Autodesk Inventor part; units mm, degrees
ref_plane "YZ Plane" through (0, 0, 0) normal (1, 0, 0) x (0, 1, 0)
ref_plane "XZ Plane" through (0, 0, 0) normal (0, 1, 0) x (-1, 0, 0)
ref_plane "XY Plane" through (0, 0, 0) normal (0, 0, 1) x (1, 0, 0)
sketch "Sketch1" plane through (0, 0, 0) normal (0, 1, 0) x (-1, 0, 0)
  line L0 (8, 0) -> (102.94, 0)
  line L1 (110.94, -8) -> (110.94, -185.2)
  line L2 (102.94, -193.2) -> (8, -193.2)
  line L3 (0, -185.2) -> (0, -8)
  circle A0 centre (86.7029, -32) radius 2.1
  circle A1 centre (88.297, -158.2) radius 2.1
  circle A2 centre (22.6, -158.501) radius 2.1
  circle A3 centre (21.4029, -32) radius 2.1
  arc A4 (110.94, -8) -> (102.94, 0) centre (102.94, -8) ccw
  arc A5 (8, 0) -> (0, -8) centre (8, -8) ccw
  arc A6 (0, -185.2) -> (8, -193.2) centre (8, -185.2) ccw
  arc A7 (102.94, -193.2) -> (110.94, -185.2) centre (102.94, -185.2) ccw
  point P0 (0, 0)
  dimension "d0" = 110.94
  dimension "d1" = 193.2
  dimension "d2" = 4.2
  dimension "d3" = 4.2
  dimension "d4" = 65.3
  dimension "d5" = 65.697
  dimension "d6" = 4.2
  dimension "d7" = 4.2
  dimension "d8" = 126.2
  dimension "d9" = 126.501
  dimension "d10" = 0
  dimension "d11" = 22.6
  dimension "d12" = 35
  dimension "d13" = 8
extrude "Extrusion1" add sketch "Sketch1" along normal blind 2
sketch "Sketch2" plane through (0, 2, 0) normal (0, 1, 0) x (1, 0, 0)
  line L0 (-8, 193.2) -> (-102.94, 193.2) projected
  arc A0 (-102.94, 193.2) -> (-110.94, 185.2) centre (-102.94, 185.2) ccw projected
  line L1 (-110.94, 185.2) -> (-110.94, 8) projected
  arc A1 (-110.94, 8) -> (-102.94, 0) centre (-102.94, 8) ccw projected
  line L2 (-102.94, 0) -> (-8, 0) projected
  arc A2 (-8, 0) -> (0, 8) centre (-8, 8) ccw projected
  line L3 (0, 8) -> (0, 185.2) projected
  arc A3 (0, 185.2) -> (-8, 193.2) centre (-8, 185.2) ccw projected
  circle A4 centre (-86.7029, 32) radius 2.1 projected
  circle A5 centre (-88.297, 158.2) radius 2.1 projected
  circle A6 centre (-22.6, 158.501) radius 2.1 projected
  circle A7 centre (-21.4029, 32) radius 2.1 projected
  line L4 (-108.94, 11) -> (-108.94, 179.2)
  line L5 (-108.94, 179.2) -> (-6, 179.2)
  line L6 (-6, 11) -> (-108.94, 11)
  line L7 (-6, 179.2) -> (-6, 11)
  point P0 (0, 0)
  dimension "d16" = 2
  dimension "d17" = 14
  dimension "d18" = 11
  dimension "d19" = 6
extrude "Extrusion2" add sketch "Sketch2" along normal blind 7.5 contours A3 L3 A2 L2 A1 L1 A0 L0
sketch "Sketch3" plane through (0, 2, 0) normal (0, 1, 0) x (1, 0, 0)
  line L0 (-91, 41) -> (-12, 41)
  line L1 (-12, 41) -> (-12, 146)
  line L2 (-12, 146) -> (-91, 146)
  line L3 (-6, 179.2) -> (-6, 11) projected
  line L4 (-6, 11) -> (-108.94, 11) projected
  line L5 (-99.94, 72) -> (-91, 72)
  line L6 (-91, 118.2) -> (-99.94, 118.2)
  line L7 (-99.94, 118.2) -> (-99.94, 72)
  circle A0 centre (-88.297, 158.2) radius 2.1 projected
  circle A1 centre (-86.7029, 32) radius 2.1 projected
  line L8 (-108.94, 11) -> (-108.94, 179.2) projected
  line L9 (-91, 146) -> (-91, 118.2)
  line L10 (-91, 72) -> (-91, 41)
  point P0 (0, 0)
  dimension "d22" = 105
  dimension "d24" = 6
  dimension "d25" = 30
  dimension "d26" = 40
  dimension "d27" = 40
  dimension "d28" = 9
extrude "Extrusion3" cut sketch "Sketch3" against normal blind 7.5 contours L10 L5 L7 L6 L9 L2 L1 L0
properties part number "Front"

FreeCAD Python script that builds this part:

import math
import FreeCAD as App
import Part
import Sketcher

V = App.Vector


def add_polygon(sketch, points):
    """Adds a closed chain of lines whose ends are joined by coincident constraints."""
    first, n = sketch.GeometryCount, len(points)
    for a, b in zip(points, points[1:] + points[:1]):
        sketch.addGeometry(Part.LineSegment(App.Vector(*a, 0), App.Vector(*b, 0)), False)
    for i in range(n):
        sketch.addConstraint(Sketcher.Constraint("Coincident", first + i, 2, first + (i + 1) % n, 1))

doc = App.newDocument("Part")
body = doc.addObject("PartDesign::Body", "Body")

# Sketch on XZ plane
sketch1 = body.newObject("Sketcher::SketchObject", "Sketch")
sketch1.AttachmentSupport = (doc.getObject("XZ_Plane"), [""])
sketch1.MapMode = "FlatFace"
sketch1.addGeometry(Part.LineSegment(V(-102.9, 0, 0), V(-8, 0, 0)), False)
sketch1.addGeometry(Part.ArcOfCircle(Part.Circle(V(-8, -8, 0), V(0, 0, 1), 8), math.radians(0), math.radians(90)), False)
sketch1.addGeometry(Part.LineSegment(V(0, -8, 0), V(0, -185.2, 0)), False)
sketch1.addGeometry(Part.ArcOfCircle(Part.Circle(V(-8, -185.2, 0), V(0, 0, 1), 8), math.radians(-90), math.radians(0)), False)
sketch1.addGeometry(Part.LineSegment(V(-8, -193.2, 0), V(-102.9, -193.2, 0)), False)
sketch1.addGeometry(Part.ArcOfCircle(Part.Circle(V(-102.9, -185.2, 0), V(0, 0, 1), 8), math.radians(180), math.radians(270)), False)
sketch1.addGeometry(Part.LineSegment(V(-110.9, -185.2, 0), V(-110.9, -8, 0)), False)
sketch1.addGeometry(Part.ArcOfCircle(Part.Circle(V(-102.9, -8, 0), V(0, 0, 1), 8), math.radians(90), math.radians(180)), False)
sketch1.addGeometry(Part.Circle(V(-22.6, -158.5, 0), V(0, 0, 1), 2.1), False)
sketch1.addGeometry(Part.Circle(V(-88.3, -158.2, 0), V(0, 0, 1), 2.1), False)
sketch1.addGeometry(Part.Circle(V(-21.4, -32, 0), V(0, 0, 1), 2.1), False)
sketch1.addGeometry(Part.Circle(V(-86.7, -32, 0), V(0, 0, 1), 2.1), False)
sketch1.addConstraint(Sketcher.Constraint("Tangent", 0, 2, 1, 2))
sketch1.addConstraint(Sketcher.Constraint("Tangent", 1, 1, 2, 1))
sketch1.addConstraint(Sketcher.Constraint("Tangent", 2, 2, 3, 2))
sketch1.addConstraint(Sketcher.Constraint("Tangent", 3, 1, 4, 1))
sketch1.addConstraint(Sketcher.Constraint("Tangent", 4, 2, 5, 2))
sketch1.addConstraint(Sketcher.Constraint("Tangent", 5, 1, 6, 1))
sketch1.addConstraint(Sketcher.Constraint("Tangent", 6, 2, 7, 2))
sketch1.addConstraint(Sketcher.Constraint("Tangent", 7, 1, 0, 1))
sketch1.addConstraint(Sketcher.Constraint("Horizontal", 0))
sketch1.addConstraint(Sketcher.Constraint("Vertical", 2))
sketch1.addConstraint(Sketcher.Constraint("Horizontal", 4))
sketch1.addConstraint(Sketcher.Constraint("Vertical", 6))
sketch1.addConstraint(Sketcher.Constraint("Equal", 1, 3))
sketch1.addConstraint(Sketcher.Constraint("Equal", 3, 5))
sketch1.addConstraint(Sketcher.Constraint("Equal", 5, 7))
sketch1.addConstraint(Sketcher.Constraint("Equal", 8, 9))
sketch1.addConstraint(Sketcher.Constraint("Equal", 9, 10))
sketch1.addConstraint(Sketcher.Constraint("Equal", 10, 11))
sketch1.addConstraint(Sketcher.Constraint("PointOnObject", 0, 2, -1))
sketch1.addConstraint(Sketcher.Constraint("PointOnObject", 1, 1, -2))
sketch1.addConstraint(Sketcher.Constraint("Horizontal", 10, 3, 11, 3))
sketch1.addConstraint(Sketcher.Constraint("Radius", 1, 8.0))
sketch1.addConstraint(Sketcher.Constraint("Diameter", 8, 4.2))
sketch1.addConstraint(Sketcher.Constraint("DistanceY", 3, 1, 9, 3, 35.0))
sketch1.addConstraint(Sketcher.Constraint("DistanceX", 8, 3, -1, 1, 22.6))
sketch1.addConstraint(Sketcher.Constraint("DistanceY", 3, 1, -1, 1, 193.2))
sketch1.addConstraint(Sketcher.Constraint("DistanceY", 9, 3, 10, 3, 126.2))
sketch1.addConstraint(Sketcher.Constraint("DistanceX", 11, 3, 10, 3, 65.3))
sketch1.addConstraint(Sketcher.Constraint("DistanceX", 5, 1, -1, 1, 110.94))
sketch1.addConstraint(Sketcher.Constraint("DistanceX", 9, 3, 8, 3, 65.697))
sketch1.addConstraint(Sketcher.Constraint("DistanceY", 8, 3, 10, 3, 126.501))
sketch1.addConstraint(Sketcher.Constraint("DistanceX", 10, 3, -1, 1, 21.403))
pad1 = body.newObject("PartDesign::Pad", "Pad")
pad1.Profile = sketch1
pad1.Length = 2
pad1.Reversed = True

# Sketch on XZ plane
sketch2 = body.newObject("Sketcher::SketchObject", "Sketch001")
sketch2.AttachmentSupport = (doc.getObject("XZ_Plane"), [""])
sketch2.MapMode = "FlatFace"
sketch2.AttachmentOffset = App.Placement(V(0, 0, -2), App.Rotation())
sketch2.addGeometry(Part.ArcOfCircle(Part.Circle(V(-8, -185, 0), V(0, 0, 1), 8), math.radians(-90), math.radians(0)), False)  # 0
sketch2.addGeometry(Part.LineSegment(V(-8, -193, 0), V(-103, -193, 0)), False)  # 1
sketch2.addGeometry(Part.ArcOfCircle(Part.Circle(V(-103, -185, 0), V(0, 0, 1), 8), math.radians(180), math.radians(270)), False)  # 2
sketch2.addGeometry(Part.LineSegment(V(-111, -185, 0), V(-111, -8, 0)), False)  # 3
sketch2.addGeometry(Part.ArcOfCircle(Part.Circle(V(-103, -8, 0), V(0, 0, 1), 8), math.radians(90), math.radians(180)), False)  # 4
sketch2.addGeometry(Part.LineSegment(V(-103, 0, 0), V(-8, 0, 0)), False)  # 5
sketch2.addGeometry(Part.ArcOfCircle(Part.Circle(V(-8, -8, 0), V(0, 0, 1), 8), math.radians(0), math.radians(90)), False)  # 6
sketch2.addGeometry(Part.LineSegment(V(0, -8, 0), V(0, -185, 0)), False)  # 7
add_polygon(sketch2, [(-6, -11), (-109, -11), (-109, -179), (-6, -179)])  # lines 8-11
sketch2.addConstraint(Sketcher.Constraint("Tangent", 0, 1, 1, 1))
sketch2.addConstraint(Sketcher.Constraint("Tangent", 1, 2, 2, 2))
sketch2.addConstraint(Sketcher.Constraint("Tangent", 2, 1, 3, 1))
sketch2.addConstraint(Sketcher.Constraint("Tangent", 3, 2, 4, 2))
sketch2.addConstraint(Sketcher.Constraint("Tangent", 4, 1, 5, 1))
sketch2.addConstraint(Sketcher.Constraint("Tangent", 5, 2, 6, 2))
sketch2.addConstraint(Sketcher.Constraint("Tangent", 6, 1, 7, 1))
sketch2.addConstraint(Sketcher.Constraint("Tangent", 7, 2, 0, 2))
sketch2.addConstraint(Sketcher.Constraint("Horizontal", 1))
sketch2.addConstraint(Sketcher.Constraint("Vertical", 3))
sketch2.addConstraint(Sketcher.Constraint("Horizontal", 5))
sketch2.addConstraint(Sketcher.Constraint("Vertical", 7))
sketch2.addConstraint(Sketcher.Constraint("Horizontal", 8))
sketch2.addConstraint(Sketcher.Constraint("Vertical", 9))
sketch2.addConstraint(Sketcher.Constraint("Horizontal", 10))
sketch2.addConstraint(Sketcher.Constraint("Vertical", 11))
sketch2.addConstraint(Sketcher.Constraint("Equal", 0, 2))
sketch2.addConstraint(Sketcher.Constraint("Equal", 2, 4))
sketch2.addConstraint(Sketcher.Constraint("Equal", 4, 6))
sketch2.addConstraint(Sketcher.Constraint("PointOnObject", 4, 1, -1))
sketch2.addConstraint(Sketcher.Constraint("PointOnObject", 6, 1, -2))
sketch2.addConstraint(Sketcher.Constraint("DistanceY", 8, 2, -1, 1, 11.0))
sketch2.addConstraint(Sketcher.Constraint("DistanceX", 10, 2, -1, 1, 6.0))
sketch2.addConstraint(Sketcher.Constraint("Radius", 0, 8.0))
sketch2.addConstraint(Sketcher.Constraint("DistanceX", 3, 2, 8, 2, 2.0))
sketch2.addConstraint(Sketcher.Constraint("DistanceY", 2, 1, 9, 2, 6.0))
sketch2.addConstraint(Sketcher.Constraint("DistanceY", 3, 1, 3, 2, 177.2))
sketch2.addConstraint(Sketcher.Constraint("DistanceX", 1, 2, 1, 1, 94.94))
pad2 = body.newObject("PartDesign::Pad", "Pad001")
pad2.Profile = sketch2
pad2.Length = 7.5
pad2.Reversed = True

# Sketch on XZ plane
sketch3 = body.newObject("Sketcher::SketchObject", "Sketch002")
sketch3.AttachmentSupport = (doc.getObject("XZ_Plane"), [""])
sketch3.MapMode = "FlatFace"
sketch3.AttachmentOffset = App.Placement(V(0, 0, -2), App.Rotation())
add_polygon(sketch3, [(-91, -72), (-91, -41), (-12, -41), (-12, -146), (-91, -146), (-91, -118), (-100, -118), (-100, -72)])  # lines 0-7
sketch3.addConstraint(Sketcher.Constraint("Vertical", 0))
sketch3.addConstraint(Sketcher.Constraint("Horizontal", 1))
sketch3.addConstraint(Sketcher.Constraint("Vertical", 2))
sketch3.addConstraint(Sketcher.Constraint("Horizontal", 3))
sketch3.addConstraint(Sketcher.Constraint("Vertical", 4))
sketch3.addConstraint(Sketcher.Constraint("Horizontal", 5))
sketch3.addConstraint(Sketcher.Constraint("Vertical", 6))
sketch3.addConstraint(Sketcher.Constraint("Horizontal", 7))
sketch3.addConstraint(Sketcher.Constraint("Vertical", 0, 2, 3, 2))
sketch3.addConstraint(Sketcher.Constraint("DistanceY", 2, 2, 2, 1, 105.0))
sketch3.addConstraint(Sketcher.Constraint("DistanceX", 1, 1, 1, 2, 79.0))
sketch3.addConstraint(Sketcher.Constraint("DistanceY", 0, 1, 0, 2, 31.0))
sketch3.addConstraint(Sketcher.Constraint("DistanceY", 4, 1, 4, 2, 27.8))
sketch3.addConstraint(Sketcher.Constraint("DistanceX", 0, 2, -1, 1, 91.0))
sketch3.addConstraint(Sketcher.Constraint("DistanceY", 0, 2, -1, 1, 41.0))
sketch3.addConstraint(Sketcher.Constraint("DistanceX", 5, 2, 5, 1, 8.94))
pocket1 = body.newObject("PartDesign::Pocket", "Pocket")
pocket1.Profile = sketch3
pocket1.Length = 7.5
pocket1.Reversed = True

doc.recompute()
